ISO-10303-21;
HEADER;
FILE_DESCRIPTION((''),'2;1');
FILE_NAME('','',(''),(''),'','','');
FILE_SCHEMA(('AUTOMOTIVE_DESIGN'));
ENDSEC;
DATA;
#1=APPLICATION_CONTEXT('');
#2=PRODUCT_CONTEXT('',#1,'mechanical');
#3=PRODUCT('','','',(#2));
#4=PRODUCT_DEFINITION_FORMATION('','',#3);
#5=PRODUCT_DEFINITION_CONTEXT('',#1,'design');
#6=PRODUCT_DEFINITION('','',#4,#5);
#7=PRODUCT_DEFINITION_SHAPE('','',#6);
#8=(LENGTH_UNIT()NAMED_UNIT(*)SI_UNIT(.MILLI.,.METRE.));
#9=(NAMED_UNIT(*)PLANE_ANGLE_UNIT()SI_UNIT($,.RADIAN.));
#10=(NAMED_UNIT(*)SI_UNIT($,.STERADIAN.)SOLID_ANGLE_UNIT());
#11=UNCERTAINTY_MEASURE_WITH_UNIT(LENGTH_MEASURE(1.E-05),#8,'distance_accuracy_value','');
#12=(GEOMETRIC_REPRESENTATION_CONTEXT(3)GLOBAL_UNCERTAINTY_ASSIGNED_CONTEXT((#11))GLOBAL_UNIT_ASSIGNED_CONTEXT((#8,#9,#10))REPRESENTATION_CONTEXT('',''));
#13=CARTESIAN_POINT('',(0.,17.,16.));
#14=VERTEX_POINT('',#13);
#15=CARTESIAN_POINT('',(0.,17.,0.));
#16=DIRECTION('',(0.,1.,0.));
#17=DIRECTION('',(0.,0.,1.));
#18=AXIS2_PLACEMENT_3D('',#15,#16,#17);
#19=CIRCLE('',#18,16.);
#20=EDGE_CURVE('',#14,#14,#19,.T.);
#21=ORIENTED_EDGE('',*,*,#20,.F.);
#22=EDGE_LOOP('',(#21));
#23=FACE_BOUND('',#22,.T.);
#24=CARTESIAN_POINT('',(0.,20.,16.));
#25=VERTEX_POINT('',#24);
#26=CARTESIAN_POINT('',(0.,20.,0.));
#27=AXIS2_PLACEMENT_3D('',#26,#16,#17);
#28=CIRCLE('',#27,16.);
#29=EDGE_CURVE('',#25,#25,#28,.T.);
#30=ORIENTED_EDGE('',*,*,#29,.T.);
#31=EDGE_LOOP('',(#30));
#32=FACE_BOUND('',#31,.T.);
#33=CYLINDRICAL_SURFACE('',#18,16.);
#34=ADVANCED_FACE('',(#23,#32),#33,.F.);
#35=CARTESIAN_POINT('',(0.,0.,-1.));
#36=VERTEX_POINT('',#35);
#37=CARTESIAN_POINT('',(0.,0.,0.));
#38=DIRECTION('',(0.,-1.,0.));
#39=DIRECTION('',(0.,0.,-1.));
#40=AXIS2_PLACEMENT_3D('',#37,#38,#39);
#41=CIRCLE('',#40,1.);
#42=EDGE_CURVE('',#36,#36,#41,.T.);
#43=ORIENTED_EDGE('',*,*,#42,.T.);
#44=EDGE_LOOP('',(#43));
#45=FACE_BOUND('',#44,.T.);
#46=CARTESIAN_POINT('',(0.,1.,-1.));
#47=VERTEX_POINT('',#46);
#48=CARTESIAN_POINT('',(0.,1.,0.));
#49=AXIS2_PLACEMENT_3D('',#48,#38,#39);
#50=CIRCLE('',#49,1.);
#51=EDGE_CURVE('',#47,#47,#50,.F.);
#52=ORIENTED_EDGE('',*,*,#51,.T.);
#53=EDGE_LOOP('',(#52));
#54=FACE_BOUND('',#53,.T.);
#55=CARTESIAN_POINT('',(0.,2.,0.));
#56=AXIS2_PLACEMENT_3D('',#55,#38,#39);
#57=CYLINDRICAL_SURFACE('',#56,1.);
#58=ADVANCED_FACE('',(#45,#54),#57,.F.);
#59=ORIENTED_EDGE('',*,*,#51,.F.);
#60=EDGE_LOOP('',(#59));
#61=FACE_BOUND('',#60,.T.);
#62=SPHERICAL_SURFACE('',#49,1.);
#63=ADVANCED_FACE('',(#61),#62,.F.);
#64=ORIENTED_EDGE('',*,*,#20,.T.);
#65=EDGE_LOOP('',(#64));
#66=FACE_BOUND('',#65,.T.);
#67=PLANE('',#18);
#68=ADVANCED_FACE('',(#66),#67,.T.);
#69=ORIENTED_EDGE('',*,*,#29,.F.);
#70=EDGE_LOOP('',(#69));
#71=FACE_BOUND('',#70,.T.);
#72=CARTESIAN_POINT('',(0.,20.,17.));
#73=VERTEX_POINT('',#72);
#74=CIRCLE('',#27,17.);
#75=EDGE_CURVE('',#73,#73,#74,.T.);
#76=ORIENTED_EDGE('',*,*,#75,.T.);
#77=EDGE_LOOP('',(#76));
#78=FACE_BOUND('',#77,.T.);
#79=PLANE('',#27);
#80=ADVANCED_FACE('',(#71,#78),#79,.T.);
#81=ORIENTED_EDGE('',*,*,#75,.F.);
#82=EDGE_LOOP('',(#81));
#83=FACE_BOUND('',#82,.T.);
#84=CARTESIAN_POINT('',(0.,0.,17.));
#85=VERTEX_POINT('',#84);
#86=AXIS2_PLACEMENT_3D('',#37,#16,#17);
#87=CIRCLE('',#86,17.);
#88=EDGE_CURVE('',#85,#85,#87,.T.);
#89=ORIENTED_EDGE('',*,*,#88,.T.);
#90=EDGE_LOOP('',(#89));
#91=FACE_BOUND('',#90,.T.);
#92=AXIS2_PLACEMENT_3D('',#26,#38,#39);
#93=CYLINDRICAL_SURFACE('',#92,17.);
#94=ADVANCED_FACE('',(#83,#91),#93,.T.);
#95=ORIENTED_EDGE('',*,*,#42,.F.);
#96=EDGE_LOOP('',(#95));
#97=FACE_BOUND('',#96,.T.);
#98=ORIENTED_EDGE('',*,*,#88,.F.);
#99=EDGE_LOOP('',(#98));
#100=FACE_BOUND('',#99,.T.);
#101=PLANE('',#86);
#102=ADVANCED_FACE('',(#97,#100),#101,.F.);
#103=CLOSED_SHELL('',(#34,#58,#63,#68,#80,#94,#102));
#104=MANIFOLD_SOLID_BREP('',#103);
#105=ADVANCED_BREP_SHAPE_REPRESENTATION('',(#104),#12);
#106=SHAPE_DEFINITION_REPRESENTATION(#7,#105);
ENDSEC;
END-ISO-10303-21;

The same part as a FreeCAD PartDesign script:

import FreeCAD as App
import Part
import Sketcher
from FreeCAD import Vector
Q = App.Units.Quantity


def edges_at(feature, points):
    """Names of the edges that pass closest to the given points."""
    edges = feature.Shape.Edges
    near = lambda p: min(range(len(edges)), key=lambda i: edges[i].distToShape(Part.Vertex(*p))[0])
    return sorted({f"Edge{near(p) + 1}" for p in points})

doc = App.newDocument("Part")
body = doc.addObject("PartDesign::Body", "Body")

# Sketch on XZ plane
sketch1 = body.newObject("Sketcher::SketchObject", "Sketch")
sketch1.AttachmentSupport = (doc.getObject("XZ_Plane"), [""])
sketch1.MapMode = "FlatFace"
sketch1.addGeometry(Part.Circle(Vector(0, 0, 0), Vector(0, 0, 1), 17), False)
sketch1.addConstraint(Sketcher.Constraint("Coincident", 0, 3, -1, 1))
sketch1.addConstraint(Sketcher.Constraint("Diameter", 0, Q("34 mm")))
pad1 = body.newObject("PartDesign::Pad", "Pad")
pad1.Profile = sketch1
pad1.Length = 20
pad1.Reversed = True

# Sketch on XZ plane
sketch2 = body.newObject("Sketcher::SketchObject", "Sketch001")
sketch2.AttachmentSupport = (doc.getObject("XZ_Plane"), [""])
sketch2.MapMode = "FlatFace"
sketch2.AttachmentOffset = App.Placement(Vector(0, 0, -20), App.Rotation())
sketch2.addGeometry(Part.Circle(Vector(0, 0, 0), Vector(0, 0, 1), 16), False)
sketch2.addConstraint(Sketcher.Constraint("Coincident", 0, 3, -1, 1))
sketch2.addConstraint(Sketcher.Constraint("Diameter", 0, Q("32 mm")))
pocket1 = body.newObject("PartDesign::Pocket", "Pocket")
pocket1.Profile = sketch2
pocket1.Length = 3
pocket1.Reversed = True

# Sketch on XZ plane
sketch3 = body.newObject("Sketcher::SketchObject", "Sketch002")
sketch3.AttachmentSupport = (doc.getObject("XZ_Plane"), [""])
sketch3.MapMode = "FlatFace"
sketch3.addGeometry(Part.Circle(Vector(0, 0, 0), Vector(0, 0, 1), 1), False)
sketch3.addConstraint(Sketcher.Constraint("Coincident", 0, 3, -1, 1))
sketch3.addConstraint(Sketcher.Constraint("Diameter", 0, Q("2 mm")))
pocket2 = body.newObject("PartDesign::Pocket", "Pocket001")
pocket2.Profile = sketch3
pocket2.Length = 2
doc.recompute()

fillet = body.newObject("PartDesign::Fillet", "Fillet")
fillet.Base = (pocket2, edges_at(pocket2, [(-1, 2, 0)]))
fillet.Radius = 1

doc.recompute()
